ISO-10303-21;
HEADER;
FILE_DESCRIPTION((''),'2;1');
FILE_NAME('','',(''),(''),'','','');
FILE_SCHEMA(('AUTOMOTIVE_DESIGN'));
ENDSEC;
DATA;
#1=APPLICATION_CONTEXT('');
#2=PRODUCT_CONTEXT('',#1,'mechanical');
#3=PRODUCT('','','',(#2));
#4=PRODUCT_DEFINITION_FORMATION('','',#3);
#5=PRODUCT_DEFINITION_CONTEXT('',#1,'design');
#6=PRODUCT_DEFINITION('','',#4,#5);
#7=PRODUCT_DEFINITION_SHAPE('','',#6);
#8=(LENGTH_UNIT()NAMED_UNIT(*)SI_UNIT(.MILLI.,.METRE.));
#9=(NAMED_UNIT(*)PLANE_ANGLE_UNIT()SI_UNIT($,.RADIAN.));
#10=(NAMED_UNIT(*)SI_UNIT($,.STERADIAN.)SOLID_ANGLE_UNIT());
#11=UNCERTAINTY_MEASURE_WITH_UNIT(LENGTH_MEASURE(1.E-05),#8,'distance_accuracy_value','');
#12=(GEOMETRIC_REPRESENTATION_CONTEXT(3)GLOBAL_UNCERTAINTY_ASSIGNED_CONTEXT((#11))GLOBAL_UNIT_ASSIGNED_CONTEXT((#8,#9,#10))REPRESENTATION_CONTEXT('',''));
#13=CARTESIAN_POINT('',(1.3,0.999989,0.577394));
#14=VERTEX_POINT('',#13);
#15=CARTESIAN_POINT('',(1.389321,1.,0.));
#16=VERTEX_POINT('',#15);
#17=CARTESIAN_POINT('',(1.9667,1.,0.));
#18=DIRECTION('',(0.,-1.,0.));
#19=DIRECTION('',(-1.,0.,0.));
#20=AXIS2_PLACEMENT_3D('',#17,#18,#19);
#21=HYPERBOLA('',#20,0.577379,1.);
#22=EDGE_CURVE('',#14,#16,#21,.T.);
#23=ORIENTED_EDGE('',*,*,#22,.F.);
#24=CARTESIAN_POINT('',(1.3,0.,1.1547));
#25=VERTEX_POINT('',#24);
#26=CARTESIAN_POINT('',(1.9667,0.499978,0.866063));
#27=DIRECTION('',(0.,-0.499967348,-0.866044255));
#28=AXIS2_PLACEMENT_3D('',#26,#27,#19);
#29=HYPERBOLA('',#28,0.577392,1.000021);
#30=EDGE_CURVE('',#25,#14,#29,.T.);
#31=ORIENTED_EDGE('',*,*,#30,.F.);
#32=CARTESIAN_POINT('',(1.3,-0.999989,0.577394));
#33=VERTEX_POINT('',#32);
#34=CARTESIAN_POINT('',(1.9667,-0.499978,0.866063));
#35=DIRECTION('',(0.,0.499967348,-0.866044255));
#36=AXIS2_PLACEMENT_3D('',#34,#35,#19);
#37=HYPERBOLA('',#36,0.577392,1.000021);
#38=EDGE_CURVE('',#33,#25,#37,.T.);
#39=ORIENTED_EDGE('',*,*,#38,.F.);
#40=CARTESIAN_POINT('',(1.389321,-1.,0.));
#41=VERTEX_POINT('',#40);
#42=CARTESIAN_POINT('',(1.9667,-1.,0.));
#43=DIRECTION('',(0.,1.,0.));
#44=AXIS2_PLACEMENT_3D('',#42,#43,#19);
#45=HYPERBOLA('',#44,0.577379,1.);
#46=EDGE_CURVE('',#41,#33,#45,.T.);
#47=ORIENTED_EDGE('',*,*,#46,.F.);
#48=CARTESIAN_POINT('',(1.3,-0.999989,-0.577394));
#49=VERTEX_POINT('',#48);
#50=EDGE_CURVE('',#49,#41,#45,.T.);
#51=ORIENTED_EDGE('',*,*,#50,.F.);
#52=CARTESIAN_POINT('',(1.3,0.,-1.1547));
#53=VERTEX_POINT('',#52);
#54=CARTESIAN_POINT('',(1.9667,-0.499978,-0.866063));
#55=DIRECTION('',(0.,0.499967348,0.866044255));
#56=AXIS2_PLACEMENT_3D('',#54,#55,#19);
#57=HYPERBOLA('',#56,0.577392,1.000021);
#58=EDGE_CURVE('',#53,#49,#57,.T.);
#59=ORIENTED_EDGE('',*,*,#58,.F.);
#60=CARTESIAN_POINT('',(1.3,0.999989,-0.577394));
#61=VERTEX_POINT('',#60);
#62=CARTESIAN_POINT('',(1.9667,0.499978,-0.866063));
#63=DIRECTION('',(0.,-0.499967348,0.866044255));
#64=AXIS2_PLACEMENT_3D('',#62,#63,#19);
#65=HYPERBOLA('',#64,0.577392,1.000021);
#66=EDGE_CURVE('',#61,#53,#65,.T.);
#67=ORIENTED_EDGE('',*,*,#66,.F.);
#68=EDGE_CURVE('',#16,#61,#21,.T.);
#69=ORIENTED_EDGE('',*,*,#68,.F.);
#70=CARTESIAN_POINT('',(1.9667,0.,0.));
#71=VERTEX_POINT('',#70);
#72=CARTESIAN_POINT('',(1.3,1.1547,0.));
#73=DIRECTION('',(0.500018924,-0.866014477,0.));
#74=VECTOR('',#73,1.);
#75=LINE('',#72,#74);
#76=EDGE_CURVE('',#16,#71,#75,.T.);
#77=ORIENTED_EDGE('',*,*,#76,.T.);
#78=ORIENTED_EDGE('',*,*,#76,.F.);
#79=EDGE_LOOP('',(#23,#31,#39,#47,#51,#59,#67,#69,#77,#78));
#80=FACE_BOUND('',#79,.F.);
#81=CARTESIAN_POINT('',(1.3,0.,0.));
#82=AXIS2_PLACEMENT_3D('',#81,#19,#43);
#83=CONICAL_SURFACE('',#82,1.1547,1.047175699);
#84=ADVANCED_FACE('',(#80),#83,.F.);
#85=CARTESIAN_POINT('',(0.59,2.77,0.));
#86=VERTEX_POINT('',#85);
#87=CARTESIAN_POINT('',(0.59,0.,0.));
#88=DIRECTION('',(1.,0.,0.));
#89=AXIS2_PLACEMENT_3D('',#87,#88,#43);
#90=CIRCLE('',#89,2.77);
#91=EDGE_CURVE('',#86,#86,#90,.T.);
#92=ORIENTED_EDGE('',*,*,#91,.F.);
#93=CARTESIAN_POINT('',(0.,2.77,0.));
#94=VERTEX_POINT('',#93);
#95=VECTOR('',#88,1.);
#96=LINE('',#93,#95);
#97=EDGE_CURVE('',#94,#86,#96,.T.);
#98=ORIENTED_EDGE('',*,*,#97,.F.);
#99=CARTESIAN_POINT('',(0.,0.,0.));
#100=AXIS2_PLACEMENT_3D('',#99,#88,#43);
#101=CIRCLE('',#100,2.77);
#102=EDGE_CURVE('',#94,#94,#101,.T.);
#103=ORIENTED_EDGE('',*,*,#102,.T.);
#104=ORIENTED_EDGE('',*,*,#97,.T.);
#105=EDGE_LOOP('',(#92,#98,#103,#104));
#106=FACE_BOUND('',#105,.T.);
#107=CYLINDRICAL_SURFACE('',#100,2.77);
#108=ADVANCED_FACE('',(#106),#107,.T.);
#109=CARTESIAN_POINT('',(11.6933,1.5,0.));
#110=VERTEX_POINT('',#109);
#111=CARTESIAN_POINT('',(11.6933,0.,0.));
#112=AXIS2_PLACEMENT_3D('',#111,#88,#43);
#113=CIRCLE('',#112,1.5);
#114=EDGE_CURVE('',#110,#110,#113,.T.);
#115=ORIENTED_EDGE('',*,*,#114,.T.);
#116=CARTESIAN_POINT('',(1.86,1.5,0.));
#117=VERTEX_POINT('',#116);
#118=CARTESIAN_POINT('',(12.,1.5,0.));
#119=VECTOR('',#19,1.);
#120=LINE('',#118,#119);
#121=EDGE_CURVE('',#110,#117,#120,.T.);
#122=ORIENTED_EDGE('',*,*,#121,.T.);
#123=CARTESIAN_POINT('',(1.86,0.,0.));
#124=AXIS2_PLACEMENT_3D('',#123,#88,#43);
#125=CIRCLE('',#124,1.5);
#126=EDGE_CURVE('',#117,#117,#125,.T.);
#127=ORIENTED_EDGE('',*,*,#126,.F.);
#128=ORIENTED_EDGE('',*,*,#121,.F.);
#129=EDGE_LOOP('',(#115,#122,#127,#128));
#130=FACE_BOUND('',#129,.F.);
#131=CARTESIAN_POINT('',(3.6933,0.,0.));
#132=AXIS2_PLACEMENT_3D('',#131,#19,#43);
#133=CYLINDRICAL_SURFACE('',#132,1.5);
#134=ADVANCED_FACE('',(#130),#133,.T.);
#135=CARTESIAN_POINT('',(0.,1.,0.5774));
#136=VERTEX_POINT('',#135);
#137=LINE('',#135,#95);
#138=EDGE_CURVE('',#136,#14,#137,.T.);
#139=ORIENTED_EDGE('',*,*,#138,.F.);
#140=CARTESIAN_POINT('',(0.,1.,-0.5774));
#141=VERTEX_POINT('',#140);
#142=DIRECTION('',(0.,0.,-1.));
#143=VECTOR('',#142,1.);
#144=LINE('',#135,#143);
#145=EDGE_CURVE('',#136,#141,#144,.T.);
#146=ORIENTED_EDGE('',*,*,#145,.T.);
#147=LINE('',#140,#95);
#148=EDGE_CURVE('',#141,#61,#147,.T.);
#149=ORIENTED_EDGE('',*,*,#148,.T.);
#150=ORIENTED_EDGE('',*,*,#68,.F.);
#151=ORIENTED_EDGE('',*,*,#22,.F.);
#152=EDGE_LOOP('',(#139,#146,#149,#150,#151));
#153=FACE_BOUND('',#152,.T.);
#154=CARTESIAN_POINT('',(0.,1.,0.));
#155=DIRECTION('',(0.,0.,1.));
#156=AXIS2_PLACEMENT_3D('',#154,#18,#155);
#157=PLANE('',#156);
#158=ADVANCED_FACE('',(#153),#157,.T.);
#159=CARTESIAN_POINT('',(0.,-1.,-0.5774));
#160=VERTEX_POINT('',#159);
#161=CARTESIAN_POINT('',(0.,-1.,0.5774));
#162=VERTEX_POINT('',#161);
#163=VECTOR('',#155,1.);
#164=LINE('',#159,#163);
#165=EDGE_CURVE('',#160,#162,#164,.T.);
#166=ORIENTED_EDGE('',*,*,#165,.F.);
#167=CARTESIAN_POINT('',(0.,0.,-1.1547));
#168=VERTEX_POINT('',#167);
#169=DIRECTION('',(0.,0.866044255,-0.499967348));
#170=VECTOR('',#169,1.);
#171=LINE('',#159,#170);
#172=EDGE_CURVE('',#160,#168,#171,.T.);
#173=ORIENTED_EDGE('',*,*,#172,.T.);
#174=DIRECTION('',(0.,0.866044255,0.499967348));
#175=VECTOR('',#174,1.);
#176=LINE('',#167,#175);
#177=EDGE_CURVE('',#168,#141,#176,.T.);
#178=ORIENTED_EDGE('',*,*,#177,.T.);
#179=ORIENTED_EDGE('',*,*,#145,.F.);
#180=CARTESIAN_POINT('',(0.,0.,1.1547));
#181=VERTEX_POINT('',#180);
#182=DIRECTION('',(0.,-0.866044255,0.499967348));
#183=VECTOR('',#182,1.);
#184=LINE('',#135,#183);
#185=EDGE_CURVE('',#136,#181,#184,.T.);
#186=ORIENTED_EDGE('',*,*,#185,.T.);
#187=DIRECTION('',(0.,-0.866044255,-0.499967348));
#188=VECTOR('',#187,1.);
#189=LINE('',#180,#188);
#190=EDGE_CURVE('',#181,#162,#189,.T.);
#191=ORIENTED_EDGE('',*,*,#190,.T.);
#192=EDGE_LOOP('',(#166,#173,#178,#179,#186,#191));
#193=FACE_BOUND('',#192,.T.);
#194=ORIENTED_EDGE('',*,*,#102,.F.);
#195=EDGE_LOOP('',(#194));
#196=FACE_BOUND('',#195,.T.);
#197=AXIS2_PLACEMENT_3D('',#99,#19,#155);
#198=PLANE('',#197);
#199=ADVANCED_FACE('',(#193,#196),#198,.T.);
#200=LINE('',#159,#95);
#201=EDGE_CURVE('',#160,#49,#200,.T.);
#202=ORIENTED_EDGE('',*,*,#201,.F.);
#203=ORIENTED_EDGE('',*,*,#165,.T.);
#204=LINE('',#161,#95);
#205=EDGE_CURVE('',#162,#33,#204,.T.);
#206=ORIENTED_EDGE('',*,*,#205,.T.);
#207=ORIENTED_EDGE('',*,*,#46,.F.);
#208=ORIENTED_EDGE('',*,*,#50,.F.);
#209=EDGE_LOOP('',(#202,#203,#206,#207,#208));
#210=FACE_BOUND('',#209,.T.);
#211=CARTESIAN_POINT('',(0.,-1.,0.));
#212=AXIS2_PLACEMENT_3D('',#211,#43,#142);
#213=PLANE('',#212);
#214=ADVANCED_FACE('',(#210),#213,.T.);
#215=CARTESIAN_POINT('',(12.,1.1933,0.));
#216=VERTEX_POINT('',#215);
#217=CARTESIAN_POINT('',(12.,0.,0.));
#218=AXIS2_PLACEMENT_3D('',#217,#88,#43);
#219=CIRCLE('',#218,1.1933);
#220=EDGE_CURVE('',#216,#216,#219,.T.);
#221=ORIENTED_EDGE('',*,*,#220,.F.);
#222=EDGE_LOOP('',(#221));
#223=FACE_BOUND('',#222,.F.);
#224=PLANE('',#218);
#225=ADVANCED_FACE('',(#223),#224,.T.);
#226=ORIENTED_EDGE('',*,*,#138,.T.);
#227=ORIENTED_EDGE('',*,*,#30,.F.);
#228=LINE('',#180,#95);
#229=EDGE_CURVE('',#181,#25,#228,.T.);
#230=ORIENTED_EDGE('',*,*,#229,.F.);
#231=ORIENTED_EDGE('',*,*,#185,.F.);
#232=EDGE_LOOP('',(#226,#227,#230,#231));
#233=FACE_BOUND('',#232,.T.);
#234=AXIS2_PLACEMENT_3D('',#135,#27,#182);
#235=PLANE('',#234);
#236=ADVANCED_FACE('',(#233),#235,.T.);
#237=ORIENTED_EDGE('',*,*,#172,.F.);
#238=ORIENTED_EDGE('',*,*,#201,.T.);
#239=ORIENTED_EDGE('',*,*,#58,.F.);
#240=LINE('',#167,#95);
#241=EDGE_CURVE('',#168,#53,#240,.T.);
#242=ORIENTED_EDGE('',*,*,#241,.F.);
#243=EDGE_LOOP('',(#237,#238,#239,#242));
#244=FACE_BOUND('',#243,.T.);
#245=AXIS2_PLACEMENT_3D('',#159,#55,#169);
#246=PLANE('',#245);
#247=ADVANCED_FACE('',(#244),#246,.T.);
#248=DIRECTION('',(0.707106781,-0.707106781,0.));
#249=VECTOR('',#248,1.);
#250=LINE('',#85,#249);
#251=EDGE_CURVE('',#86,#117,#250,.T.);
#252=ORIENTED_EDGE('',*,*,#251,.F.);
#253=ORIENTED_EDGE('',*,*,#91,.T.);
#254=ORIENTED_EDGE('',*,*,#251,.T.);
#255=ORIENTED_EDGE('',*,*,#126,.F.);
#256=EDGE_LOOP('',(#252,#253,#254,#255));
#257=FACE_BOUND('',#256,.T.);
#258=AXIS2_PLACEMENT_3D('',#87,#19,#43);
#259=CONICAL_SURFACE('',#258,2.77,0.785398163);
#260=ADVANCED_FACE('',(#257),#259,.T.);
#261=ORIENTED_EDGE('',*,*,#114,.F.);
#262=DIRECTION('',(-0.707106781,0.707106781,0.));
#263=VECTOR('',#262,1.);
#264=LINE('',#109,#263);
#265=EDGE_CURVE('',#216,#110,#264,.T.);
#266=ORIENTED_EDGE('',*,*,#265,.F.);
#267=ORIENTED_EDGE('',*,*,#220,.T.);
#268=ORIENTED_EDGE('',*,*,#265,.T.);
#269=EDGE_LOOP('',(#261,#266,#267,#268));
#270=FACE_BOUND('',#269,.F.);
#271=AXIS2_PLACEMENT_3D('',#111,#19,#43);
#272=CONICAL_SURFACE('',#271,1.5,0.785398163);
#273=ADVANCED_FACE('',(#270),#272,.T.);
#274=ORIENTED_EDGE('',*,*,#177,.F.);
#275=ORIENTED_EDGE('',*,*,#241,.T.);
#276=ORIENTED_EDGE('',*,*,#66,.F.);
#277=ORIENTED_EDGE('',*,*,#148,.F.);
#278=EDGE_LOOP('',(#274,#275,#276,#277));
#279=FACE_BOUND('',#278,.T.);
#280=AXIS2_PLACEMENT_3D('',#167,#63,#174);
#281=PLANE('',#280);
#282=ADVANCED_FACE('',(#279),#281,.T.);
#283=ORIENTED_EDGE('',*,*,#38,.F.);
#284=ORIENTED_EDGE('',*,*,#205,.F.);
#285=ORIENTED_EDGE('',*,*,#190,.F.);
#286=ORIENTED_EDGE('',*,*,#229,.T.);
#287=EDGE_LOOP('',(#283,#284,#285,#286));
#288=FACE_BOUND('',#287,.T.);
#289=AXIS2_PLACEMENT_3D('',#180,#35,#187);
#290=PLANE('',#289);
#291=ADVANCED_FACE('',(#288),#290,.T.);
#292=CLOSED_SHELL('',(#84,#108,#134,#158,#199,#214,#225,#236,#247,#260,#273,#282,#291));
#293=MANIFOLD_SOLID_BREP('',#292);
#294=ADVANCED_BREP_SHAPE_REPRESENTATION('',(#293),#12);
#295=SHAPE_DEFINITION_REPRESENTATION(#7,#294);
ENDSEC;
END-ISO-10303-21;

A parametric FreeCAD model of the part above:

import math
import FreeCAD as App
import Part
import Sketcher
from FreeCAD import Vector
Q = App.Units.Quantity


def edges_at(feature, points):
    """Names of the edges that pass closest to the given points."""
    edges = feature.Shape.Edges
    near = lambda p: min(range(len(edges)), key=lambda i: edges[i].distToShape(Part.Vertex(*p))[0])
    return sorted({f"Edge{near(p) + 1}" for p in points})


def add_polygon(sketch, points):
    """Adds a closed chain of lines whose ends are joined by coincident constraints."""
    first, n = sketch.GeometryCount, len(points)
    for a, b in zip(points, points[1:] + points[:1]):
        sketch.addGeometry(Part.LineSegment(App.Vector(*a, 0), App.Vector(*b, 0)), False)
    for i in range(n):
        sketch.addConstraint(Sketcher.Constraint("Coincident", first + i, 2, first + (i + 1) % n, 1))

doc = App.newDocument("Part")
body = doc.addObject("PartDesign::Body", "Body")

# Sketch on XY plane
sketch1 = body.newObject("Sketcher::SketchObject", "Sketch")
sketch1.AttachmentSupport = (doc.getObject("XY_Plane"), [""])
sketch1.MapMode = "FlatFace"
add_polygon(sketch1, [(2, 0), (12, 0), (12, 1.5), (1.9, 1.5), (0.6, 2.8), (0, 2.8), (0, 1.2), (1.3, 1.2)])  # lines 0-7
sketch1.addConstraint([
    Sketcher.Constraint("Horizontal", 0),
    Sketcher.Constraint("Vertical", 1),
    Sketcher.Constraint("Horizontal", 2),
    Sketcher.Constraint("Horizontal", 4),
    Sketcher.Constraint("Vertical", 5),
    Sketcher.Constraint("Horizontal", 6),
    Sketcher.Constraint("PointOnObject", 0, 2, -1),
    Sketcher.Constraint("PointOnObject", 4, 2, -2),
    Sketcher.Constraint("DistanceX", 6, 1, 6, 2, Q("1.3 mm")),
    Sketcher.Constraint("DistanceX", -1, 1, 0, 2, Q("12 mm")),
    Sketcher.Constraint("DistanceX", -1, 1, 2, 2, Q("1.86 mm")),
    Sketcher.Constraint("Angle", 3, Q("135 deg")),
    Sketcher.Constraint("DistanceY", 1, 1, 1, 2, Q("1.5 mm")),
    Sketcher.Constraint("DistanceX", 4, 2, 4, 1, Q("0.59 mm")),
    Sketcher.Constraint("DistanceX", 0, 1, 0, 2, Q("10.0333 mm")),
    Sketcher.Constraint("DistanceY", 5, 2, 5, 1, Q("1.6153 mm")),
])
revolution = body.newObject("PartDesign::Revolution", "Revolution")
revolution.Profile = sketch1
revolution.ReferenceAxis = (sketch1, ["H_Axis"])
revolution.Angle = 360

# Sketch on YZ plane
sketch2 = body.newObject("Sketcher::SketchObject", "Sketch001")
sketch2.AttachmentSupport = (doc.getObject("YZ_Plane"), [""])
sketch2.MapMode = "FlatFace"
sketch2.addGeometry([
    Part.LineSegment(Vector(1, 0.6, 0), Vector(0, 1.2, 0)),  # 0
    Part.ArcOfCircle(Part.Circle(Vector(0, 0, 0), Vector(0, 0, 1), 1.2), math.radians(30), math.radians(90)),  # 1
    Part.ArcOfCircle(Part.Circle(Vector(0, 0, 0), Vector(0, 0, 1), 1.2), math.radians(90), math.radians(150)),  # 2
    Part.LineSegment(Vector(0, 1.2, 0), Vector(-1, 0.6, 0)),  # 3
    Part.ArcOfCircle(Part.Circle(Vector(0, 0, 0), Vector(0, 0, 1), 1.2), math.radians(-30), math.radians(30)),  # 4
    Part.LineSegment(Vector(1, 0.6, 0), Vector(1, -0.6, 0)),  # 5
    Part.LineSegment(Vector(-1, 0.6, 0), Vector(-1, -0.6, 0)),  # 6
    Part.ArcOfCircle(Part.Circle(Vector(0, 0, 0), Vector(0, 0, 1), 1.2), math.radians(150), math.radians(210)),  # 7
    Part.LineSegment(Vector(-1, -0.6, 0), Vector(0, -1.2, 0)),  # 8
    Part.ArcOfCircle(Part.Circle(Vector(0, 0, 0), Vector(0, 0, 1), 1.2), math.radians(-150), math.radians(-90)),  # 9
    Part.ArcOfCircle(Part.Circle(Vector(0, 0, 0), Vector(0, 0, 1), 1.2), math.radians(-90), math.radians(-30)),  # 10
    Part.LineSegment(Vector(0, -1.2, 0), Vector(1, -0.6, 0)),  # 11
], False)
sketch2.addConstraint([
    Sketcher.Constraint("Coincident", 0, 1, 1, 1),
    Sketcher.Constraint("Coincident", 1, 2, 0, 2),
    Sketcher.Constraint("Coincident", 2, 1, 3, 1),
    Sketcher.Constraint("Coincident", 3, 2, 2, 2),
    Sketcher.Constraint("Coincident", 4, 1, 5, 2),
    Sketcher.Constraint("Coincident", 5, 1, 4, 2),
    Sketcher.Constraint("Coincident", 6, 1, 7, 1),
    Sketcher.Constraint("Coincident", 7, 2, 6, 2),
    Sketcher.Constraint("Coincident", 8, 1, 9, 1),
    Sketcher.Constraint("Coincident", 9, 2, 8, 2),
    Sketcher.Constraint("Coincident", 10, 1, 11, 1),
    Sketcher.Constraint("Coincident", 11, 2, 10, 2),
    Sketcher.Constraint("Vertical", 5),
    Sketcher.Constraint("Vertical", 6),
    Sketcher.Constraint("Coincident", 1, 3, -1, 1),
    Sketcher.Constraint("Coincident", 2, 3, -1, 1),
    Sketcher.Constraint("Coincident", 4, 3, -1, 1),
    Sketcher.Constraint("Coincident", 7, 3, -1, 1),
    Sketcher.Constraint("Coincident", 9, 3, -1, 1),
    Sketcher.Constraint("Coincident", 10, 3, -1, 1),
    Sketcher.Constraint("Coincident", 2, 1, 1, 2),
    Sketcher.Constraint("Coincident", 5, 1, 0, 1),
    Sketcher.Constraint("Coincident", 6, 1, 3, 2),
    Sketcher.Constraint("Coincident", 8, 1, 7, 2),
    Sketcher.Constraint("Coincident", 10, 1, 9, 2),
    Sketcher.Constraint("PointOnObject", 1, 2, -2),
    Sketcher.Constraint("PointOnObject", 9, 2, -2),
    Sketcher.Constraint("Parallel", 0, 8),
    Sketcher.Constraint("Parallel", 3, 11),
    Sketcher.Constraint("DistanceX", -1, 1, 0, 1, Q("1 mm")),
    Sketcher.Constraint("Radius", 1, Q("1.1547 mm")),
])
pad1 = body.newObject("PartDesign::Pad", "Pad")
pad1.Profile = sketch2
pad1.Type = "UpToFirst"
doc.recompute()

chamfer = body.newObject("PartDesign::Chamfer", "Chamfer")
chamfer.Base = (pad1, edges_at(pad1, [(12, -1.5, 0)]))
chamfer.ChamferType = "Two distances"
chamfer.Size = 0.3067
chamfer.Size2 = 0.3067

doc.recompute()
